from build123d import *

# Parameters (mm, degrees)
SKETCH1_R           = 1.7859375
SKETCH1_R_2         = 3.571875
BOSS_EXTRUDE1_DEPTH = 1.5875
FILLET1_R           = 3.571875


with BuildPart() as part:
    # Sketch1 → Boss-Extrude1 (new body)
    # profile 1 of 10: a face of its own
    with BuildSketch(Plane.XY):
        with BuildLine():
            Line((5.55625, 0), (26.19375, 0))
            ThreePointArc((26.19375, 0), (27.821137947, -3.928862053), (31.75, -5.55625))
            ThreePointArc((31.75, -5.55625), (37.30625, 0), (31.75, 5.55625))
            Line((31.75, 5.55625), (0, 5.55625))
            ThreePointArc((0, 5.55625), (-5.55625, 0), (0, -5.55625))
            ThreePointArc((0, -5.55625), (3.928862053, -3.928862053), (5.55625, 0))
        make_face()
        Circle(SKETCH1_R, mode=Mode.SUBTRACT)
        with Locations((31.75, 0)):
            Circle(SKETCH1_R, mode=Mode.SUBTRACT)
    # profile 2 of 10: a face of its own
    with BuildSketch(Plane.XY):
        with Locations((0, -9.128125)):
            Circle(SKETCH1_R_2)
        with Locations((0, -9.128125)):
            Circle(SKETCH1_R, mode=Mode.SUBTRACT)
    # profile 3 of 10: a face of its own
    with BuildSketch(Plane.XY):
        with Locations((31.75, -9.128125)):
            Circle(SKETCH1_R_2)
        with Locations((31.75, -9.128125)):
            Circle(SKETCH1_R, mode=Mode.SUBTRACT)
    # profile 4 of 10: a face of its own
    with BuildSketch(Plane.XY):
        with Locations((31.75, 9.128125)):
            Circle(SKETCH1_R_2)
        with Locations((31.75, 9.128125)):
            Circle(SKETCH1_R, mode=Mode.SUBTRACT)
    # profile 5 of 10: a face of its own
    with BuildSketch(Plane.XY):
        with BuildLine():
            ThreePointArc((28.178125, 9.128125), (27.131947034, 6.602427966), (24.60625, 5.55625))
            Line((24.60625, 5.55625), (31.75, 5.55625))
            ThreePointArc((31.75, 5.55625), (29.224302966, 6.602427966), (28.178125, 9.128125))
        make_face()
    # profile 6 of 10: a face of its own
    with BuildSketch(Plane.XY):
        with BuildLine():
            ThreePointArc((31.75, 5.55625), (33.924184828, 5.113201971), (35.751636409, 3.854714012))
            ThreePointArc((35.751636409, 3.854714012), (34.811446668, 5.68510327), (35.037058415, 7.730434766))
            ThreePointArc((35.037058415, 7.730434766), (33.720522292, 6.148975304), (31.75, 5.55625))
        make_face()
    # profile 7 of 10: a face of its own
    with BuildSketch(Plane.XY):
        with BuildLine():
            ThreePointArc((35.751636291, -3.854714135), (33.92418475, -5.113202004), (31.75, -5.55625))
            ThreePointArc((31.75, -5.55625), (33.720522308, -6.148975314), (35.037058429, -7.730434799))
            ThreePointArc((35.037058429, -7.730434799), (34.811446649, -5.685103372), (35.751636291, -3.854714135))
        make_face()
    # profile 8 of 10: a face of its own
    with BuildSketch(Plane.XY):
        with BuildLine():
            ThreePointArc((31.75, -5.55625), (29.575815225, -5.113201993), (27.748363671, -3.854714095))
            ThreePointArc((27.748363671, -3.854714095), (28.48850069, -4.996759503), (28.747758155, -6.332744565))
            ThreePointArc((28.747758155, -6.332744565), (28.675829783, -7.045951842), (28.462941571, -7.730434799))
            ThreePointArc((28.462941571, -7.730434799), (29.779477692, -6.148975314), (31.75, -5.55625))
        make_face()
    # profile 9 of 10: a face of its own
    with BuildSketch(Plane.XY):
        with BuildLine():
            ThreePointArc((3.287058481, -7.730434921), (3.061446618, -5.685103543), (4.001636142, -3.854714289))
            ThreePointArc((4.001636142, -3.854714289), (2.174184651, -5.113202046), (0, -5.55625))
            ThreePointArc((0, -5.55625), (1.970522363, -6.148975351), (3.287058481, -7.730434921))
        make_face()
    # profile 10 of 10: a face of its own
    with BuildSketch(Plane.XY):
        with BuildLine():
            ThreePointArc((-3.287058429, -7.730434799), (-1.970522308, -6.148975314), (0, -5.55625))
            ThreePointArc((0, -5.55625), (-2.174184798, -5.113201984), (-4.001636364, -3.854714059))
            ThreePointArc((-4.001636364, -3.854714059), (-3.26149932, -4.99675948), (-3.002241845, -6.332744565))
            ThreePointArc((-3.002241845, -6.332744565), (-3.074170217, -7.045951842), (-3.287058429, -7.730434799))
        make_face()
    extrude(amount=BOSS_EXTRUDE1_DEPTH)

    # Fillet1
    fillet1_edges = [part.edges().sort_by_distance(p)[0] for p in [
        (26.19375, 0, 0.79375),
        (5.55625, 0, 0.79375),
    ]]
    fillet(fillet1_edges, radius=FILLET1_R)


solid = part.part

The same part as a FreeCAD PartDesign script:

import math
import FreeCAD as App
import Part
import Sketcher
from FreeCAD import Vector
Q = App.Units.Quantity


def edges_at(feature, points):
    """Names of the edges that pass closest to the given points."""
    edges = feature.Shape.Edges
    near = lambda p: min(range(len(edges)), key=lambda i: edges[i].distToShape(Part.Vertex(*p))[0])
    return sorted({f"Edge{near(p) + 1}" for p in points})

doc = App.newDocument("Part")
body = doc.addObject("PartDesign::Body", "Body")

# Sketch on XY plane
sketch1 = body.newObject("Sketcher::SketchObject", "Sketch")
sketch1.AttachmentSupport = (doc.getObject("XY_Plane"), [""])
sketch1.MapMode = "FlatFace"
sketch1.addGeometry([
    Part.LineSegment(Vector(5.6, 0, 0), Vector(26.2, 0, 0)),  # 0
    Part.ArcOfCircle(Part.Circle(Vector(31.8, 0, 0), Vector(0, 0, 1), 5.6), math.radians(180), math.radians(224)),  # 1
    Part.ArcOfCircle(Part.Circle(Vector(25.2, -6.3, 0), Vector(0, 0, 1), 3.6), math.radians(0), math.radians(44)),  # 2
    Part.ArcOfCircle(Part.Circle(Vector(25.2, -6.3, 0), Vector(0, 0, 1), 3.6), math.radians(-23), math.radians(0)),  # 3
    Part.ArcOfCircle(Part.Circle(Vector(31.8, -9.1, 0), Vector(0, 0, 1), 3.6), math.radians(157), math.radians(383)),  # 4
    Part.ArcOfCircle(Part.Circle(Vector(38.3, -6.3, 0), Vector(0, 0, 1), 3.6), math.radians(136), math.radians(203)),  # 5
    Part.ArcOfCircle(Part.Circle(Vector(31.8, 0, 0), Vector(0, 0, 1), 5.6), math.radians(-44), math.radians(44)),  # 6
    Part.ArcOfCircle(Part.Circle(Vector(38.3, 6.3, 0), Vector(0, 0, 1), 3.6), math.radians(157), math.radians(224)),  # 7
    Part.ArcOfCircle(Part.Circle(Vector(31.8, 9.1, 0), Vector(0, 0, 1), 3.6), math.radians(-23), math.radians(180)),  # 8
    Part.ArcOfCircle(Part.Circle(Vector(24.6, 9.1, 0), Vector(0, 0, 1), 3.6), math.radians(-90), math.radians(0)),  # 9
    Part.LineSegment(Vector(24.6, 5.6, 0), Vector(0, 5.6, 0)),  # 10
    Part.ArcOfCircle(Part.Circle(Vector(0, 0, 0), Vector(0, 0, 1), 5.6), math.radians(90), math.radians(224)),  # 11
    Part.ArcOfCircle(Part.Circle(Vector(-6.6, -6.3, 0), Vector(0, 0, 1), 3.6), math.radians(0), math.radians(44)),  # 12
    Part.ArcOfCircle(Part.Circle(Vector(-6.6, -6.3, 0), Vector(0, 0, 1), 3.6), math.radians(-23), math.radians(0)),  # 13
    Part.ArcOfCircle(Part.Circle(Vector(0, -9.1, 0), Vector(0, 0, 1), 3.6), math.radians(157), math.radians(383)),  # 14
    Part.ArcOfCircle(Part.Circle(Vector(6.6, -6.3, 0), Vector(0, 0, 1), 3.6), math.radians(136), math.radians(203)),  # 15
    Part.ArcOfCircle(Part.Circle(Vector(0, 0, 0), Vector(0, 0, 1), 5.6), math.radians(-44), math.radians(0)),  # 16
    Part.Circle(Vector(0, 0, 0), Vector(0, 0, 1), 1.8),  # 17
    Part.Circle(Vector(31.8, 0, 0), Vector(0, 0, 1), 1.8),  # 18
    Part.Circle(Vector(0, -9.1, 0), Vector(0, 0, 1), 1.8),  # 19
    Part.Circle(Vector(31.8, -9.1, 0), Vector(0, 0, 1), 1.8),  # 20
    Part.Circle(Vector(31.8, 9.1, 0), Vector(0, 0, 1), 1.8),  # 21
], False)
sketch1.addConstraint([
    Sketcher.Constraint("Coincident", 0, 2, 1, 1),
    Sketcher.Constraint("Tangent", 1, 2, 2, 2),
    Sketcher.Constraint("Tangent", 2, 1, 3, 2),
    Sketcher.Constraint("Tangent", 3, 1, 4, 1),
    Sketcher.Constraint("Tangent", 4, 2, 5, 2),
    Sketcher.Constraint("Tangent", 5, 1, 6, 1),
    Sketcher.Constraint("Tangent", 6, 2, 7, 2),
    Sketcher.Constraint("Tangent", 7, 1, 8, 1),
    Sketcher.Constraint("Tangent", 8, 2, 9, 2),
    Sketcher.Constraint("Tangent", 9, 1, 10, 1),
    Sketcher.Constraint("Tangent", 10, 2, 11, 1),
    Sketcher.Constraint("Tangent", 11, 2, 12, 2),
    Sketcher.Constraint("Tangent", 12, 1, 13, 2),
    Sketcher.Constraint("Tangent", 13, 1, 14, 1),
    Sketcher.Constraint("Tangent", 14, 2, 15, 2),
    Sketcher.Constraint("Tangent", 15, 1, 16, 1),
    Sketcher.Constraint("Coincident", 16, 2, 0, 1),
    Sketcher.Constraint("Horizontal", 0),
    Sketcher.Constraint("Horizontal", 10),
    Sketcher.Constraint("Coincident", 11, 3, -1, 1),
    Sketcher.Constraint("Coincident", 16, 3, -1, 1),
    Sketcher.Constraint("Coincident", 17, 3, -1, 1),
    Sketcher.Constraint("Coincident", 6, 3, 1, 3),
    Sketcher.Constraint("Coincident", 18, 3, 1, 3),
    Sketcher.Constraint("Coincident", 19, 3, 14, 3),
    Sketcher.Constraint("Coincident", 20, 3, 4, 3),
    Sketcher.Constraint("Coincident", 21, 3, 8, 3),
    Sketcher.Constraint("Equal", 2, 3),
    Sketcher.Constraint("Equal", 3, 4),
    Sketcher.Constraint("Equal", 4, 5),
    Sketcher.Constraint("Equal", 1, 6),
    Sketcher.Constraint("Equal", 5, 7),
    Sketcher.Constraint("Equal", 7, 8),
    Sketcher.Constraint("Equal", 8, 9),
    Sketcher.Constraint("Equal", 6, 11),
    Sketcher.Constraint("Equal", 9, 12),
    Sketcher.Constraint("Equal", 12, 13),
    Sketcher.Constraint("Equal", 13, 14),
    Sketcher.Constraint("Equal", 14, 15),
    Sketcher.Constraint("Equal", 11, 16),
    Sketcher.Constraint("Equal", 17, 18),
    Sketcher.Constraint("Equal", 18, 19),
    Sketcher.Constraint("Equal", 19, 20),
    Sketcher.Constraint("Equal", 20, 21),
    Sketcher.Constraint("Symmetric", 5, 3, 7, 3, -1),
    Sketcher.Constraint("PointOnObject", 14, 3, -2),
    Sketcher.Constraint("PointOnObject", 0, 2, -1),
    Sketcher.Constraint("Horizontal", 3, 3, 5, 3),
    Sketcher.Constraint("Horizontal", 8, 3, 9, 3),
    Sketcher.Constraint("Horizontal", 5, 3, 12, 3),
    Sketcher.Constraint("Horizontal", 15, 3, 2, 1),
    Sketcher.Constraint("Horizontal", 2, 1, 12, 1),
    Sketcher.Constraint("Vertical", 6, 3, 8, 3),
    Sketcher.Constraint("Diameter", 17, Q("0.140625 in")),
    Sketcher.Constraint("Radius", 1, Q("0.21875 in")),
    Sketcher.Constraint("Radius", 2, Q("0.140625 in")),
    Sketcher.Constraint("DistanceX", 0, 1, 0, 2, Q("0.8125 in")),
])
pad1 = body.newObject("PartDesign::Pad", "Pad")
pad1.Profile = sketch1
pad1.Length = Q("0.0625 in")
doc.recompute()

fillet = body.newObject("PartDesign::Fillet", "Fillet")
fillet.Base = (pad1, edges_at(pad1, [(26.194, 0, 0.794), (5.556, 0, 0.794)]))
fillet.Radius = Q("0.140625 in")

doc.recompute()
